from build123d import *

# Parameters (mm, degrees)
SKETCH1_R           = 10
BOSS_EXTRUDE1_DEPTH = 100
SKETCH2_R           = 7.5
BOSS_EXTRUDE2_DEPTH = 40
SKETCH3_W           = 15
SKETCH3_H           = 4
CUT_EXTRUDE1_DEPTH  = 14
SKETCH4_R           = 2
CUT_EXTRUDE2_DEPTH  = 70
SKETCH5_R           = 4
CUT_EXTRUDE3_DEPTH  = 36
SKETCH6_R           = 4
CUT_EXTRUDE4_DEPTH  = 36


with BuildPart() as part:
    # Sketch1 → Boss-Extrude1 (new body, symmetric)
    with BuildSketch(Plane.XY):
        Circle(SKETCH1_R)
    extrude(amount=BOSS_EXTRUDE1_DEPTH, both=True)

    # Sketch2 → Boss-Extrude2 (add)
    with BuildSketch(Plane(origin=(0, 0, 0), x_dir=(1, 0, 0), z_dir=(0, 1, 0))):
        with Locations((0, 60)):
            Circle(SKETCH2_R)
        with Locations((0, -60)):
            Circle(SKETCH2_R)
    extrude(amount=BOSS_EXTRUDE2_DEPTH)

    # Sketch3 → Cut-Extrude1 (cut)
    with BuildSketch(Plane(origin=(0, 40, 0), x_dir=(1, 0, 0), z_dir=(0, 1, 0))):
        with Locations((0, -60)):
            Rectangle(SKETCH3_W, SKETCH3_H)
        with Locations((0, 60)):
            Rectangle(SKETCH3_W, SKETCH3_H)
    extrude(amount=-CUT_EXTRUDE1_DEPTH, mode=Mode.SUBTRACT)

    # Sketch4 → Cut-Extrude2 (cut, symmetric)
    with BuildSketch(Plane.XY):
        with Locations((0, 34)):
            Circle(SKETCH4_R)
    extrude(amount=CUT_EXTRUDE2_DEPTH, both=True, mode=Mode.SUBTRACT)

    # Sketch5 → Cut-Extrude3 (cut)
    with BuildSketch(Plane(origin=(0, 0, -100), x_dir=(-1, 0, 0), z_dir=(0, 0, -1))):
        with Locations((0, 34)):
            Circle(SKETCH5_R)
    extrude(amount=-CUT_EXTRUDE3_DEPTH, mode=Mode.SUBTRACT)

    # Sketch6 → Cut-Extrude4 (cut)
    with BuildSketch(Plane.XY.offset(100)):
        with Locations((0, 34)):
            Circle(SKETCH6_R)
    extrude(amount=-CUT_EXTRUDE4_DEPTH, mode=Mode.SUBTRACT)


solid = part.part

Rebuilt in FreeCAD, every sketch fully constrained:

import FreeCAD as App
import Part
import Sketcher

V = App.Vector


def add_polygon(sketch, points):
    """Adds a closed chain of lines whose ends are joined by coincident constraints."""
    first, n = sketch.GeometryCount, len(points)
    for a, b in zip(points, points[1:] + points[:1]):
        sketch.addGeometry(Part.LineSegment(App.Vector(*a, 0), App.Vector(*b, 0)), False)
    for i in range(n):
        sketch.addConstraint(Sketcher.Constraint("Coincident", first + i, 2, first + (i + 1) % n, 1))

doc = App.newDocument("Part")
params = doc.addObject("Spreadsheet::Sheet", "Params")
for row, (alias, value) in enumerate([
    ("sketch1_diameter", "20 mm"),
    ("pad1_length", "200 mm"),
    ("sketch2_diameter", "15 mm"),
    ("pad2_length", "40 mm"),
    ("sketch3_width", "15 mm"),
    ("sketch3_height", "4 mm"),
    ("pocket1_length", "14 mm"),
    ("sketch4_diameter", "4 mm"),
    ("pocket2_length", "140 mm"),
    ("sketch5_diameter", "8 mm"),
    ("pocket3_length", "36 mm"),
    ("sketch6_diameter", "8 mm"),
    ("pocket4_length", "36 mm"),
], start=1):
    params.set(f"A{row}", alias)
    params.set(f"B{row}", "=" + value)
    params.setAlias(f"B{row}", alias)

body = doc.addObject("PartDesign::Body", "Body")

sketch1 = doc.addObject("Sketcher::SketchObject", "Sketch")
body.addObject(sketch1)
sketch1.AttachmentSupport = (doc.XY_Plane, [""])
sketch1.MapMode = "FlatFace"
sketch1.addGeometry(Part.Circle(V(0, 0, 0), V(0, 0, 1), 10), False)
sketch1.addConstraint([
    Sketcher.Constraint("Coincident", 0, 3, -1, 1),
    Sketcher.Constraint("Diameter", 0, 20.0),
])
sketch1.setExpression("Constraints[1]", "Params.sketch1_diameter")
pad1 = doc.addObject("PartDesign::Pad", "Pad")
body.addObject(pad1)
pad1.Profile = sketch1
pad1.setExpression("Length", "Params.pad1_length")
pad1.Midplane = True

sketch2 = doc.addObject("Sketcher::SketchObject", "Sketch001")
body.addObject(sketch2)
sketch2.AttachmentSupport = (doc.XZ_Plane, [""])
sketch2.MapMode = "FlatFace"
sketch2.addGeometry([
    Part.Circle(V(0, -60, 0), V(0, 0, 1), 8),
    Part.Circle(V(0, 60, 0), V(0, 0, 1), 8),
], False)
sketch2.addConstraint([
    Sketcher.Constraint("Equal", 0, 1),
    Sketcher.Constraint("Symmetric", 0, 3, 1, 3, -1, 1),
    Sketcher.Constraint("PointOnObject", 0, 3, -2),
    Sketcher.Constraint("Diameter", 0, 15.0),
    Sketcher.Constraint("DistanceY", 0, 3, -1, 1, 60.0),
])
sketch2.setExpression("Constraints[3]", "Params.sketch2_diameter")
pad2 = doc.addObject("PartDesign::Pad", "Pad001")
body.addObject(pad2)
pad2.Profile = sketch2
pad2.setExpression("Length", "Params.pad2_length")
pad2.Reversed = True

sketch3 = doc.addObject("Sketcher::SketchObject", "Sketch002")
body.addObject(sketch3)
sketch3.AttachmentSupport = (doc.XZ_Plane, [""])
sketch3.MapMode = "FlatFace"
sketch3.AttachmentOffset = App.Placement(V(0, 0, -40), App.Rotation())
add_polygon(sketch3, [(-7.5, 58), (-7.5, 62), (7.5, 62), (7.5, 58)])
add_polygon(sketch3, [(-7.5, -62), (-7.5, -58), (7.5, -58), (7.5, -62)])
sketch3.addConstraint([
    Sketcher.Constraint("Vertical", 0),
    Sketcher.Constraint("Horizontal", 1),
    Sketcher.Constraint("Vertical", 2),
    Sketcher.Constraint("Horizontal", 3),
    Sketcher.Constraint("Vertical", 4),
    Sketcher.Constraint("Horizontal", 5),
    Sketcher.Constraint("Vertical", 6),
    Sketcher.Constraint("Horizontal", 7),
    Sketcher.Constraint("Symmetric", 2, 2, 4, 2, -1, 1),
    Sketcher.Constraint("Symmetric", 0, 2, 6, 2, -1, 1),
    Sketcher.Constraint("Vertical", 3, 2, 4, 2),
    Sketcher.Constraint("DistanceX", 1, 1, 1, 2, 15.0),
    Sketcher.Constraint("DistanceY", 0, 1, 0, 2, 4.0),
    Sketcher.Constraint("DistanceY", -1, 1, 0, 2, 62.0),
])
sketch3.setExpression("Constraints[19]", "Params.sketch3_width")
sketch3.setExpression("Constraints[20]", "Params.sketch3_height")
pocket1 = doc.addObject("PartDesign::Pocket", "Pocket")
body.addObject(pocket1)
pocket1.Profile = sketch3
pocket1.setExpression("Length", "Params.pocket1_length")
pocket1.Reversed = True

sketch4 = doc.addObject("Sketcher::SketchObject", "Sketch003")
body.addObject(sketch4)
sketch4.AttachmentSupport = (doc.XY_Plane, [""])
sketch4.MapMode = "FlatFace"
sketch4.addGeometry(Part.Circle(V(0, 34, 0), V(0, 0, 1), 2), False)
sketch4.addConstraint([
    Sketcher.Constraint("PointOnObject", 0, 3, -2),
    Sketcher.Constraint("Diameter", 0, 4.0),
    Sketcher.Constraint("DistanceY", -1, 1, 0, 3, 34.0),
])
sketch4.setExpression("Constraints[1]", "Params.sketch4_diameter")
pocket2 = doc.addObject("PartDesign::Pocket", "Pocket001")
body.addObject(pocket2)
pocket2.Profile = sketch4
pocket2.setExpression("Length", "Params.pocket2_length")
pocket2.Midplane = True

sketch5 = doc.addObject("Sketcher::SketchObject", "Sketch004")
body.addObject(sketch5)
sketch5.AttachmentSupport = (doc.XY_Plane, [""])
sketch5.MapMode = "FlatFace"
sketch5.AttachmentOffset = App.Placement(V(0, 0, -100), App.Rotation())
sketch5.addGeometry(Part.Circle(V(0, 34, 0), V(0, 0, 1), 4), False)
sketch5.addConstraint([
    Sketcher.Constraint("PointOnObject", 0, 3, -2),
    Sketcher.Constraint("Diameter", 0, 8.0),
    Sketcher.Constraint("DistanceY", -1, 1, 0, 3, 34.0),
])
sketch5.setExpression("Constraints[1]", "Params.sketch5_diameter")
pocket3 = doc.addObject("PartDesign::Pocket", "Pocket002")
body.addObject(pocket3)
pocket3.Profile = sketch5
pocket3.setExpression("Length", "Params.pocket3_length")
pocket3.Reversed = True

sketch6 = doc.addObject("Sketcher::SketchObject", "Sketch005")
body.addObject(sketch6)
sketch6.AttachmentSupport = (doc.XY_Plane, [""])
sketch6.MapMode = "FlatFace"
sketch6.AttachmentOffset = App.Placement(V(0, 0, 100), App.Rotation())
sketch6.addGeometry(Part.Circle(V(0, 34, 0), V(0, 0, 1), 4), False)
sketch6.addConstraint([
    Sketcher.Constraint("PointOnObject", 0, 3, -2),
    Sketcher.Constraint("Diameter", 0, 8.0),
    Sketcher.Constraint("DistanceY", -1, 1, 0, 3, 34.0),
])
sketch6.setExpression("Constraints[1]", "Params.sketch6_diameter")
pocket4 = doc.addObject("PartDesign::Pocket", "Pocket003")
body.addObject(pocket4)
pocket4.Profile = sketch6
pocket4.setExpression("Length", "Params.pocket4_length")

doc.recompute()
